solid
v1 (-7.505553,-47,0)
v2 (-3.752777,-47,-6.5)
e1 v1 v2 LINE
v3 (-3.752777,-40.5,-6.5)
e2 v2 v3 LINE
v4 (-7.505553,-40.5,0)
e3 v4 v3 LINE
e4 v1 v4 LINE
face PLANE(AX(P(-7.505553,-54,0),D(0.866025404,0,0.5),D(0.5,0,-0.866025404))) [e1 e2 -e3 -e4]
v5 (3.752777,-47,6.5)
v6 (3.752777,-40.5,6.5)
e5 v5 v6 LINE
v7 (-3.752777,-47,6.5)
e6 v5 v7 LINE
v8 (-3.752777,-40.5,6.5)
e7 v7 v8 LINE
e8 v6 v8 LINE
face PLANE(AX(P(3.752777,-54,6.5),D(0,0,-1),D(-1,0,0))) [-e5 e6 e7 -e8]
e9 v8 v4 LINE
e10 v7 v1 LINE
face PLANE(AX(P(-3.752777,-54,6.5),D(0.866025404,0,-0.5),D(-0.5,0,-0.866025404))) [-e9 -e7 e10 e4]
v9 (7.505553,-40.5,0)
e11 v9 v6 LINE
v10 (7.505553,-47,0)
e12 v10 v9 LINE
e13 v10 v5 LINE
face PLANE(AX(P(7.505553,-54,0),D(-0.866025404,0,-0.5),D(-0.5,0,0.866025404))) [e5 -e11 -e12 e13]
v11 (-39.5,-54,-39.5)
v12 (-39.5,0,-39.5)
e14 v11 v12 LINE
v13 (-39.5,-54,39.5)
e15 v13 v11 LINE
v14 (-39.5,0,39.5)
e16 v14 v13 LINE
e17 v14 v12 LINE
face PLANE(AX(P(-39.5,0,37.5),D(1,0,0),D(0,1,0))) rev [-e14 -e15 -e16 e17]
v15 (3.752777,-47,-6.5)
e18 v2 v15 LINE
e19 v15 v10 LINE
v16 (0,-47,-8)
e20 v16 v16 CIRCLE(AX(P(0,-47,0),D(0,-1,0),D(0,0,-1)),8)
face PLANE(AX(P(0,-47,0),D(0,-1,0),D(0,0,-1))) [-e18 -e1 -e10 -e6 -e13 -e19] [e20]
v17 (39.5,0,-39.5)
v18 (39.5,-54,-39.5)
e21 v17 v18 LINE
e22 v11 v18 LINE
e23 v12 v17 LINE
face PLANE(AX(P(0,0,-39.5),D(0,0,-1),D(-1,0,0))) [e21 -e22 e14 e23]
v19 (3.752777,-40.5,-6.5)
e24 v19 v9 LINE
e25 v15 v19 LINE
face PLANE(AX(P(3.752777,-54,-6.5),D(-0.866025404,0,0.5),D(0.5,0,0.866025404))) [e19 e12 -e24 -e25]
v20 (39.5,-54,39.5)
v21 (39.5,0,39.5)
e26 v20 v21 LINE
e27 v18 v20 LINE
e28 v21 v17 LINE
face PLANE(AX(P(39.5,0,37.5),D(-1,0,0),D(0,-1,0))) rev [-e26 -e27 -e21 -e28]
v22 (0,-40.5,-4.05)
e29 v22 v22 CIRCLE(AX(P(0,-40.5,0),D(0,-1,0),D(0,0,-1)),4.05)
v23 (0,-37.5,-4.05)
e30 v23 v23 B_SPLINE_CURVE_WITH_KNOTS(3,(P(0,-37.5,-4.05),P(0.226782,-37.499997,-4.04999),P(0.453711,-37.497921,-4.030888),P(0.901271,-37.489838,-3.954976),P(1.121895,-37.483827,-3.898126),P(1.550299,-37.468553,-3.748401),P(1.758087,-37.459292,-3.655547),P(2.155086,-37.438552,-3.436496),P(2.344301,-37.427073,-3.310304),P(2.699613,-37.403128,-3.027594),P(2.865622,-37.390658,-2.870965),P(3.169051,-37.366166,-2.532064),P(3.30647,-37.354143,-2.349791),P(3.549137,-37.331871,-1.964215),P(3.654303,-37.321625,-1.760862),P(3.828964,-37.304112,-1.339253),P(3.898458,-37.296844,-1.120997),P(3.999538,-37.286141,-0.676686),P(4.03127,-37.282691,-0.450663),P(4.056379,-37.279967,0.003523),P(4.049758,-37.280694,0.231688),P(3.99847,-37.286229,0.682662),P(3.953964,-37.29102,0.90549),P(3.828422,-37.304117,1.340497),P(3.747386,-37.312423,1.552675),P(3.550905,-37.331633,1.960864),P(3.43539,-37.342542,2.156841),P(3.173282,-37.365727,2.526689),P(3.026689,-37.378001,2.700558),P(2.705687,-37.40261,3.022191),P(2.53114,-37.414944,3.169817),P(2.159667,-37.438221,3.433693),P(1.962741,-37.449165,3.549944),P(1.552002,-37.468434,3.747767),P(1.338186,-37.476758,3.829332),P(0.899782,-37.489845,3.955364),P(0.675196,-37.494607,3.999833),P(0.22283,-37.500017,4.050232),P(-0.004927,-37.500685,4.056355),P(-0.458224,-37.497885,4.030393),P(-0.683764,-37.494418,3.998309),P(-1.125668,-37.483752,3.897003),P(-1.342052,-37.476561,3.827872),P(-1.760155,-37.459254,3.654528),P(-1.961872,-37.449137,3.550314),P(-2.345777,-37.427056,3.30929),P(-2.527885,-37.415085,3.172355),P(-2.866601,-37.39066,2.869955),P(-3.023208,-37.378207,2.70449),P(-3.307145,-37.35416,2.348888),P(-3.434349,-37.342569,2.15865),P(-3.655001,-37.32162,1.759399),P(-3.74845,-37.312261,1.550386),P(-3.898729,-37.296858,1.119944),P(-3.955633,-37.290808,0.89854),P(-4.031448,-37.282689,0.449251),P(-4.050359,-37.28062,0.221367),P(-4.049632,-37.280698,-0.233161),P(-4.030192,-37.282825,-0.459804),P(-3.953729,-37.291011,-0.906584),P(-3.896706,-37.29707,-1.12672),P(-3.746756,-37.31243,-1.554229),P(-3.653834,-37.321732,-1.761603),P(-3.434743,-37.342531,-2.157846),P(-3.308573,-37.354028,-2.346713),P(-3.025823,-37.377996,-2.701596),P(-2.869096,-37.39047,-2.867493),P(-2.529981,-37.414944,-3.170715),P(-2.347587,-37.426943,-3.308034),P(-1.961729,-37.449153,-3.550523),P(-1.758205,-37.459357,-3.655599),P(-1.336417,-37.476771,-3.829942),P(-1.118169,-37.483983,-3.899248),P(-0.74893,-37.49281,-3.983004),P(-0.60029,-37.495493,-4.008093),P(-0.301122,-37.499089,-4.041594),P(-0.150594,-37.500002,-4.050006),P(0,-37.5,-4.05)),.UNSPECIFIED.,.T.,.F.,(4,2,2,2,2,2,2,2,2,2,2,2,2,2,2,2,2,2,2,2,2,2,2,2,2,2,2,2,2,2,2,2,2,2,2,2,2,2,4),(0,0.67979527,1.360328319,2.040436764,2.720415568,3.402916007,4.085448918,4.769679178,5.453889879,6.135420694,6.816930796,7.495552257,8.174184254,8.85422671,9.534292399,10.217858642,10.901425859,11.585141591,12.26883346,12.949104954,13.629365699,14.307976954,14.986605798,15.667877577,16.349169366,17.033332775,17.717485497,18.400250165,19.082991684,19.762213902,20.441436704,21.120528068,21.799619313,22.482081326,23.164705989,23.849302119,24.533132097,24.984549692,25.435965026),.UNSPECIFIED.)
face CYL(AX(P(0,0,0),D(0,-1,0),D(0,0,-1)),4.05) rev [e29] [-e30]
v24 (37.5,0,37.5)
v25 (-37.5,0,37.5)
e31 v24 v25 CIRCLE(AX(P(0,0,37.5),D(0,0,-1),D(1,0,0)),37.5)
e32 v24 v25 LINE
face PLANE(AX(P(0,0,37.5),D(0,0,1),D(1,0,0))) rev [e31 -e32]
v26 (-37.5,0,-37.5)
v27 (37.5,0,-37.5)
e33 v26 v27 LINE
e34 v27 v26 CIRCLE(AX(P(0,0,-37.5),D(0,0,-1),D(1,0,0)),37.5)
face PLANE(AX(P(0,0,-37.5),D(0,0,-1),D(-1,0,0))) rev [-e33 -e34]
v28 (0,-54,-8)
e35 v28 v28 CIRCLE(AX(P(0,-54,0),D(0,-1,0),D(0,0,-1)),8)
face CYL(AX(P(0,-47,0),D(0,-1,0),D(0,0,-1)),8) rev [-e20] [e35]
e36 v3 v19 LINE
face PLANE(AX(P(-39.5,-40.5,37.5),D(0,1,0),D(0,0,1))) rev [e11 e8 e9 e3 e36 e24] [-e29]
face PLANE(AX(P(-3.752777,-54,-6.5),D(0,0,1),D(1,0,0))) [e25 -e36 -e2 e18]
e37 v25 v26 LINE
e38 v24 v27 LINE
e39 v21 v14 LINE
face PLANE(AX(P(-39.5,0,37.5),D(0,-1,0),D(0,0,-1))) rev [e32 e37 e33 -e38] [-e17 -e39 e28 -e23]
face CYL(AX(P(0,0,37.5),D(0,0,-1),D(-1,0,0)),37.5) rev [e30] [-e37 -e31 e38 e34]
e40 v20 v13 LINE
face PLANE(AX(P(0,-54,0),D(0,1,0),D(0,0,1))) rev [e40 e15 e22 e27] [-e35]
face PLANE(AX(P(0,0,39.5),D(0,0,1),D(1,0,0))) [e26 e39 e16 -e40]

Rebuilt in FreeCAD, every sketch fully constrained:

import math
import FreeCAD as App
import Part
import Sketcher
from FreeCAD import Vector
Q = App.Units.Quantity

doc = App.newDocument("Part")
params = doc.addObject("Spreadsheet::Sheet", "Params")
for row, (alias, value) in enumerate([
    ("sketch1_radius", "37.5 mm"),
    ("sketch1_width", "2 mm"),
    ("sketch1_height", "40.5 mm"),
    ("pad1_length", "75 mm"),
    ("sketch2_width", "79 mm"),
    ("sketch2_height", "40.5 mm"),
    ("pad2_length", "2 mm"),
    ("sketch3_width", "79 mm"),
    ("sketch3_height", "40.5 mm"),
    ("pad3_length", "2 mm"),
    ("sketch4_diameter", "8.1 mm"),
    ("sketch5_width", "79 mm"),
    ("pad4_length", "13.5 mm"),
    ("sketch6_diameter", "16 mm"),
    ("pocket2_length", "7 mm"),
], start=1):
    params.set(f"A{row}", alias)
    params.set(f"B{row}", "=" + value)
    params.setAlias(f"B{row}", alias)

body = doc.addObject("PartDesign::Body", "Body")

sketch1 = body.newObject("Sketcher::SketchObject", "Sketch")
sketch1.AttachmentSupport = (doc.getObject("XY_Plane"), [""])
sketch1.MapMode = "FlatFace"
sketch1.addGeometry(Part.LineSegment(Vector(39.5, 0, 0), Vector(37.5, 0, 0)), False)
sketch1.addGeometry(Part.ArcOfCircle(Part.Circle(Vector(0, 0, 0), Vector(0, 0, 1), 37.5), math.radians(180), math.radians(360)), False)
sketch1.addGeometry(Part.LineSegment(Vector(-37.5, 0, 0), Vector(-39.5, 0, 0)), False)
sketch1.addGeometry(Part.LineSegment(Vector(-39.5, 0, 0), Vector(-39.5, -40.5, 0)), False)
sketch1.addGeometry(Part.LineSegment(Vector(-39.5, -40.5, 0), Vector(39.5, -40.5, 0)), False)
sketch1.addGeometry(Part.LineSegment(Vector(39.5, -40.5, 0), Vector(39.5, 0, 0)), False)
sketch1.addConstraint(Sketcher.Constraint("Coincident", 0, 2, 1, 2))
sketch1.addConstraint(Sketcher.Constraint("Coincident", 1, 1, 2, 1))
sketch1.addConstraint(Sketcher.Constraint("Coincident", 2, 2, 3, 1))
sketch1.addConstraint(Sketcher.Constraint("Coincident", 3, 2, 4, 1))
sketch1.addConstraint(Sketcher.Constraint("Coincident", 4, 2, 5, 1))
sketch1.addConstraint(Sketcher.Constraint("Coincident", 5, 2, 0, 1))
sketch1.addConstraint(Sketcher.Constraint("Horizontal", 0))
sketch1.addConstraint(Sketcher.Constraint("Horizontal", 2))
sketch1.addConstraint(Sketcher.Constraint("Vertical", 3))
sketch1.addConstraint(Sketcher.Constraint("Horizontal", 4))
sketch1.addConstraint(Sketcher.Constraint("Vertical", 5))
sketch1.addConstraint(Sketcher.Constraint("Coincident", 1, 3, -1, 1))
sketch1.addConstraint(Sketcher.Constraint("Symmetric", 2, 2, 5, 2, -1, 1))
sketch1.addConstraint(Sketcher.Constraint("PointOnObject", 0, 2, -1))
sketch1.addConstraint(Sketcher.Constraint("Radius", 1, 37.5))
sketch1.addConstraint(Sketcher.Constraint("DistanceX", 0, 2, 0, 1, 2.0))
sketch1.addConstraint(Sketcher.Constraint("DistanceY", 3, 2, 3, 1, 40.5))
sketch1.setExpression("Constraints[14]", "Params.sketch1_radius")
sketch1.setExpression("Constraints[15]", "Params.sketch1_width")
sketch1.setExpression("Constraints[16]", "Params.sketch1_height")
pad1 = body.newObject("PartDesign::Pad", "Pad")
pad1.Profile = sketch1
pad1.setExpression("Length", "Params.pad1_length")
pad1.Midplane = True

sketch2 = body.newObject("Sketcher::SketchObject", "Sketch001")
sketch2.AttachmentSupport = (doc.getObject("XY_Plane"), [""])
sketch2.MapMode = "FlatFace"
sketch2.AttachmentOffset = App.Placement(Vector(0, 0, 37.5), App.Rotation())
sketch2.addGeometry(Part.LineSegment(Vector(-40, 0, 0), Vector(-40, -40, 0)), False)
sketch2.addGeometry(Part.LineSegment(Vector(-40, -40, 0), Vector(40, -40, 0)), False)
sketch2.addGeometry(Part.LineSegment(Vector(40, -40, 0), Vector(40, 0, 0)), False)
sketch2.addGeometry(Part.LineSegment(Vector(40, 0, 0), Vector(-40, 0, 0)), False)
sketch2.addConstraint(Sketcher.Constraint("Coincident", 0, 2, 1, 1))
sketch2.addConstraint(Sketcher.Constraint("Coincident", 1, 2, 2, 1))
sketch2.addConstraint(Sketcher.Constraint("Coincident", 2, 2, 3, 1))
sketch2.addConstraint(Sketcher.Constraint("Coincident", 3, 2, 0, 1))
sketch2.addConstraint(Sketcher.Constraint("Vertical", 0))
sketch2.addConstraint(Sketcher.Constraint("Horizontal", 1))
sketch2.addConstraint(Sketcher.Constraint("Vertical", 2))
sketch2.addConstraint(Sketcher.Constraint("Horizontal", 3))
sketch2.addConstraint(Sketcher.Constraint("Symmetric", 2, 2, 3, 2, -1, 1))
sketch2.addConstraint(Sketcher.Constraint("DistanceX", 1, 1, 1, 2, 79.0))
sketch2.addConstraint(Sketcher.Constraint("DistanceY", 0, 2, 0, 1, 40.5))
sketch2.setExpression("Constraints[9]", "Params.sketch2_width")
sketch2.setExpression("Constraints[10]", "Params.sketch2_height")
pad2 = body.newObject("PartDesign::Pad", "Pad001")
pad2.Profile = sketch2
pad2.setExpression("Length", "Params.pad2_length")

sketch3 = body.newObject("Sketcher::SketchObject", "Sketch002")
sketch3.AttachmentSupport = (doc.getObject("XY_Plane"), [""])
sketch3.MapMode = "FlatFace"
sketch3.AttachmentOffset = App.Placement(Vector(0, 0, -37.5), App.Rotation())
sketch3.addGeometry(Part.LineSegment(Vector(40, 0, 0), Vector(40, -40, 0)), False)
sketch3.addGeometry(Part.LineSegment(Vector(40, -40, 0), Vector(-40, -40, 0)), False)
sketch3.addGeometry(Part.LineSegment(Vector(-40, -40, 0), Vector(-40, 0, 0)), False)
sketch3.addGeometry(Part.LineSegment(Vector(-40, 0, 0), Vector(40, 0, 0)), False)
sketch3.addConstraint(Sketcher.Constraint("Coincident", 0, 2, 1, 1))
sketch3.addConstraint(Sketcher.Constraint("Coincident", 1, 2, 2, 1))
sketch3.addConstraint(Sketcher.Constraint("Coincident", 2, 2, 3, 1))
sketch3.addConstraint(Sketcher.Constraint("Coincident", 3, 2, 0, 1))
sketch3.addConstraint(Sketcher.Constraint("Vertical", 0))
sketch3.addConstraint(Sketcher.Constraint("Horizontal", 1))
sketch3.addConstraint(Sketcher.Constraint("Vertical", 2))
sketch3.addConstraint(Sketcher.Constraint("Horizontal", 3))
sketch3.addConstraint(Sketcher.Constraint("Symmetric", 2, 2, 3, 2, -1, 1))
sketch3.addConstraint(Sketcher.Constraint("DistanceX", 1, 2, 1, 1, 79.0))
sketch3.addConstraint(Sketcher.Constraint("DistanceY", 0, 2, 0, 1, 40.5))
sketch3.setExpression("Constraints[9]", "Params.sketch3_width")
sketch3.setExpression("Constraints[10]", "Params.sketch3_height")
pad3 = body.newObject("PartDesign::Pad", "Pad002")
pad3.Profile = sketch3
pad3.setExpression("Length", "Params.pad3_length")
pad3.Reversed = True

sketch4 = body.newObject("Sketcher::SketchObject", "Sketch003")
sketch4.AttachmentSupport = (doc.getObject("XZ_Plane"), [""])
sketch4.MapMode = "FlatFace"
sketch4.AttachmentOffset = App.Placement(Vector(0, 0, 40.5), App.Rotation())
sketch4.addGeometry(Part.Circle(Vector(0, 0, 0), Vector(0, 0, 1), 4), False)
sketch4.addConstraint(Sketcher.Constraint("Coincident", 0, 3, -1, 1))
sketch4.addConstraint(Sketcher.Constraint("Diameter", 0, 8.1))
sketch4.setExpression("Constraints[1]", "Params.sketch4_diameter")
pocket1 = body.newObject("PartDesign::Pocket", "Pocket")
pocket1.Profile = sketch4
pocket1.Type = "ThroughAll"

sketch5 = body.newObject("Sketcher::SketchObject", "Sketch004")
sketch5.AttachmentSupport = (doc.getObject("XZ_Plane"), [""])
sketch5.MapMode = "FlatFace"
sketch5.AttachmentOffset = App.Placement(Vector(0, 0, 40.5), App.Rotation())
sketch5.addGeometry(Part.LineSegment(Vector(-40, 40, 0), Vector(-40, -40, 0)), False)
sketch5.addGeometry(Part.LineSegment(Vector(-40, -40, 0), Vector(40, -40, 0)), False)
sketch5.addGeometry(Part.LineSegment(Vector(40, -40, 0), Vector(40, 40, 0)), False)
sketch5.addGeometry(Part.LineSegment(Vector(40, 40, 0), Vector(-40, 40, 0)), False)
sketch5.addGeometry(Part.LineSegment(Vector(-4, -6, 0), Vector(-8, 0, 0)), False)
sketch5.addGeometry(Part.LineSegment(Vector(-8, 0, 0), Vector(-4, 6, 0)), False)
sketch5.addGeometry(Part.LineSegment(Vector(-4, 6, 0), Vector(4, 6, 0)), False)
sketch5.addGeometry(Part.LineSegment(Vector(4, 6, 0), Vector(8, 0, 0)), False)
sketch5.addGeometry(Part.LineSegment(Vector(8, 0, 0), Vector(4, -6, 0)), False)
sketch5.addGeometry(Part.LineSegment(Vector(4, -6, 0), Vector(-4, -6, 0)), False)
sketch5.addConstraint(Sketcher.Constraint("Coincident", 0, 2, 1, 1))
sketch5.addConstraint(Sketcher.Constraint("Coincident", 1, 2, 2, 1))
sketch5.addConstraint(Sketcher.Constraint("Coincident", 2, 2, 3, 1))
sketch5.addConstraint(Sketcher.Constraint("Coincident", 3, 2, 0, 1))
sketch5.addConstraint(Sketcher.Constraint("Coincident", 4, 2, 5, 1))
sketch5.addConstraint(Sketcher.Constraint("Coincident", 5, 2, 6, 1))
sketch5.addConstraint(Sketcher.Constraint("Coincident", 6, 2, 7, 1))
sketch5.addConstraint(Sketcher.Constraint("Coincident", 7, 2, 8, 1))
sketch5.addConstraint(Sketcher.Constraint("Coincident", 8, 2, 9, 1))
sketch5.addConstraint(Sketcher.Constraint("Coincident", 9, 2, 4, 1))
sketch5.addConstraint(Sketcher.Constraint("Vertical", 0))
sketch5.addConstraint(Sketcher.Constraint("Horizontal", 1))
sketch5.addConstraint(Sketcher.Constraint("Vertical", 2))
sketch5.addConstraint(Sketcher.Constraint("Horizontal", 3))
sketch5.addConstraint(Sketcher.Constraint("Horizontal", 6))
sketch5.addConstraint(Sketcher.Constraint("Horizontal", 9))
sketch5.addConstraint(Sketcher.Constraint("Symmetric", 0, 2, 2, 2, -1, 1))
sketch5.addConstraint(Sketcher.Constraint("Symmetric", 4, 2, 7, 2, -1, 1))
sketch5.addConstraint(Sketcher.Constraint("Symmetric", 5, 2, 8, 2, -1, 1))
sketch5.addConstraint(Sketcher.Constraint("PointOnObject", 4, 2, -1))
sketch5.addConstraint(Sketcher.Constraint("Parallel", 4, 7))
sketch5.addConstraint(Sketcher.Constraint("Vertical", 6, 2, 8, 2))
sketch5.addConstraint(Sketcher.Constraint("Equal", 3, 0))
sketch5.addConstraint(Sketcher.Constraint("DistanceX", 1, 1, 1, 2, 79.0))
sketch5.addConstraint(Sketcher.Constraint("Angle", 4, Q("120 deg")))
sketch5.addConstraint(Sketcher.Constraint("DistanceY", 5, 2, 3, 2, 33.0))
sketch5.addConstraint(Sketcher.Constraint("DistanceX", 6, 1, 6, 2, 7.505554))
sketch5.setExpression("Constraints[23]", "Params.sketch5_width")
pad4 = body.newObject("PartDesign::Pad", "Pad003")
pad4.Profile = sketch5
pad4.setExpression("Length", "Params.pad4_length")

sketch6 = body.newObject("Sketcher::SketchObject", "Sketch005")
sketch6.AttachmentSupport = (doc.getObject("XZ_Plane"), [""])
sketch6.MapMode = "FlatFace"
sketch6.AttachmentOffset = App.Placement(Vector(0, 0, 54), App.Rotation())
sketch6.addGeometry(Part.Circle(Vector(0, 0, 0), Vector(0, 0, 1), 8), False)
sketch6.addConstraint(Sketcher.Constraint("Coincident", 0, 3, -1, 1))
sketch6.addConstraint(Sketcher.Constraint("Diameter", 0, 16.0))
sketch6.setExpression("Constraints[1]", "Params.sketch6_diameter")
pocket2 = body.newObject("PartDesign::Pocket", "Pocket001")
pocket2.Profile = sketch6
pocket2.setExpression("Length", "Params.pocket2_length")

doc.recompute()
